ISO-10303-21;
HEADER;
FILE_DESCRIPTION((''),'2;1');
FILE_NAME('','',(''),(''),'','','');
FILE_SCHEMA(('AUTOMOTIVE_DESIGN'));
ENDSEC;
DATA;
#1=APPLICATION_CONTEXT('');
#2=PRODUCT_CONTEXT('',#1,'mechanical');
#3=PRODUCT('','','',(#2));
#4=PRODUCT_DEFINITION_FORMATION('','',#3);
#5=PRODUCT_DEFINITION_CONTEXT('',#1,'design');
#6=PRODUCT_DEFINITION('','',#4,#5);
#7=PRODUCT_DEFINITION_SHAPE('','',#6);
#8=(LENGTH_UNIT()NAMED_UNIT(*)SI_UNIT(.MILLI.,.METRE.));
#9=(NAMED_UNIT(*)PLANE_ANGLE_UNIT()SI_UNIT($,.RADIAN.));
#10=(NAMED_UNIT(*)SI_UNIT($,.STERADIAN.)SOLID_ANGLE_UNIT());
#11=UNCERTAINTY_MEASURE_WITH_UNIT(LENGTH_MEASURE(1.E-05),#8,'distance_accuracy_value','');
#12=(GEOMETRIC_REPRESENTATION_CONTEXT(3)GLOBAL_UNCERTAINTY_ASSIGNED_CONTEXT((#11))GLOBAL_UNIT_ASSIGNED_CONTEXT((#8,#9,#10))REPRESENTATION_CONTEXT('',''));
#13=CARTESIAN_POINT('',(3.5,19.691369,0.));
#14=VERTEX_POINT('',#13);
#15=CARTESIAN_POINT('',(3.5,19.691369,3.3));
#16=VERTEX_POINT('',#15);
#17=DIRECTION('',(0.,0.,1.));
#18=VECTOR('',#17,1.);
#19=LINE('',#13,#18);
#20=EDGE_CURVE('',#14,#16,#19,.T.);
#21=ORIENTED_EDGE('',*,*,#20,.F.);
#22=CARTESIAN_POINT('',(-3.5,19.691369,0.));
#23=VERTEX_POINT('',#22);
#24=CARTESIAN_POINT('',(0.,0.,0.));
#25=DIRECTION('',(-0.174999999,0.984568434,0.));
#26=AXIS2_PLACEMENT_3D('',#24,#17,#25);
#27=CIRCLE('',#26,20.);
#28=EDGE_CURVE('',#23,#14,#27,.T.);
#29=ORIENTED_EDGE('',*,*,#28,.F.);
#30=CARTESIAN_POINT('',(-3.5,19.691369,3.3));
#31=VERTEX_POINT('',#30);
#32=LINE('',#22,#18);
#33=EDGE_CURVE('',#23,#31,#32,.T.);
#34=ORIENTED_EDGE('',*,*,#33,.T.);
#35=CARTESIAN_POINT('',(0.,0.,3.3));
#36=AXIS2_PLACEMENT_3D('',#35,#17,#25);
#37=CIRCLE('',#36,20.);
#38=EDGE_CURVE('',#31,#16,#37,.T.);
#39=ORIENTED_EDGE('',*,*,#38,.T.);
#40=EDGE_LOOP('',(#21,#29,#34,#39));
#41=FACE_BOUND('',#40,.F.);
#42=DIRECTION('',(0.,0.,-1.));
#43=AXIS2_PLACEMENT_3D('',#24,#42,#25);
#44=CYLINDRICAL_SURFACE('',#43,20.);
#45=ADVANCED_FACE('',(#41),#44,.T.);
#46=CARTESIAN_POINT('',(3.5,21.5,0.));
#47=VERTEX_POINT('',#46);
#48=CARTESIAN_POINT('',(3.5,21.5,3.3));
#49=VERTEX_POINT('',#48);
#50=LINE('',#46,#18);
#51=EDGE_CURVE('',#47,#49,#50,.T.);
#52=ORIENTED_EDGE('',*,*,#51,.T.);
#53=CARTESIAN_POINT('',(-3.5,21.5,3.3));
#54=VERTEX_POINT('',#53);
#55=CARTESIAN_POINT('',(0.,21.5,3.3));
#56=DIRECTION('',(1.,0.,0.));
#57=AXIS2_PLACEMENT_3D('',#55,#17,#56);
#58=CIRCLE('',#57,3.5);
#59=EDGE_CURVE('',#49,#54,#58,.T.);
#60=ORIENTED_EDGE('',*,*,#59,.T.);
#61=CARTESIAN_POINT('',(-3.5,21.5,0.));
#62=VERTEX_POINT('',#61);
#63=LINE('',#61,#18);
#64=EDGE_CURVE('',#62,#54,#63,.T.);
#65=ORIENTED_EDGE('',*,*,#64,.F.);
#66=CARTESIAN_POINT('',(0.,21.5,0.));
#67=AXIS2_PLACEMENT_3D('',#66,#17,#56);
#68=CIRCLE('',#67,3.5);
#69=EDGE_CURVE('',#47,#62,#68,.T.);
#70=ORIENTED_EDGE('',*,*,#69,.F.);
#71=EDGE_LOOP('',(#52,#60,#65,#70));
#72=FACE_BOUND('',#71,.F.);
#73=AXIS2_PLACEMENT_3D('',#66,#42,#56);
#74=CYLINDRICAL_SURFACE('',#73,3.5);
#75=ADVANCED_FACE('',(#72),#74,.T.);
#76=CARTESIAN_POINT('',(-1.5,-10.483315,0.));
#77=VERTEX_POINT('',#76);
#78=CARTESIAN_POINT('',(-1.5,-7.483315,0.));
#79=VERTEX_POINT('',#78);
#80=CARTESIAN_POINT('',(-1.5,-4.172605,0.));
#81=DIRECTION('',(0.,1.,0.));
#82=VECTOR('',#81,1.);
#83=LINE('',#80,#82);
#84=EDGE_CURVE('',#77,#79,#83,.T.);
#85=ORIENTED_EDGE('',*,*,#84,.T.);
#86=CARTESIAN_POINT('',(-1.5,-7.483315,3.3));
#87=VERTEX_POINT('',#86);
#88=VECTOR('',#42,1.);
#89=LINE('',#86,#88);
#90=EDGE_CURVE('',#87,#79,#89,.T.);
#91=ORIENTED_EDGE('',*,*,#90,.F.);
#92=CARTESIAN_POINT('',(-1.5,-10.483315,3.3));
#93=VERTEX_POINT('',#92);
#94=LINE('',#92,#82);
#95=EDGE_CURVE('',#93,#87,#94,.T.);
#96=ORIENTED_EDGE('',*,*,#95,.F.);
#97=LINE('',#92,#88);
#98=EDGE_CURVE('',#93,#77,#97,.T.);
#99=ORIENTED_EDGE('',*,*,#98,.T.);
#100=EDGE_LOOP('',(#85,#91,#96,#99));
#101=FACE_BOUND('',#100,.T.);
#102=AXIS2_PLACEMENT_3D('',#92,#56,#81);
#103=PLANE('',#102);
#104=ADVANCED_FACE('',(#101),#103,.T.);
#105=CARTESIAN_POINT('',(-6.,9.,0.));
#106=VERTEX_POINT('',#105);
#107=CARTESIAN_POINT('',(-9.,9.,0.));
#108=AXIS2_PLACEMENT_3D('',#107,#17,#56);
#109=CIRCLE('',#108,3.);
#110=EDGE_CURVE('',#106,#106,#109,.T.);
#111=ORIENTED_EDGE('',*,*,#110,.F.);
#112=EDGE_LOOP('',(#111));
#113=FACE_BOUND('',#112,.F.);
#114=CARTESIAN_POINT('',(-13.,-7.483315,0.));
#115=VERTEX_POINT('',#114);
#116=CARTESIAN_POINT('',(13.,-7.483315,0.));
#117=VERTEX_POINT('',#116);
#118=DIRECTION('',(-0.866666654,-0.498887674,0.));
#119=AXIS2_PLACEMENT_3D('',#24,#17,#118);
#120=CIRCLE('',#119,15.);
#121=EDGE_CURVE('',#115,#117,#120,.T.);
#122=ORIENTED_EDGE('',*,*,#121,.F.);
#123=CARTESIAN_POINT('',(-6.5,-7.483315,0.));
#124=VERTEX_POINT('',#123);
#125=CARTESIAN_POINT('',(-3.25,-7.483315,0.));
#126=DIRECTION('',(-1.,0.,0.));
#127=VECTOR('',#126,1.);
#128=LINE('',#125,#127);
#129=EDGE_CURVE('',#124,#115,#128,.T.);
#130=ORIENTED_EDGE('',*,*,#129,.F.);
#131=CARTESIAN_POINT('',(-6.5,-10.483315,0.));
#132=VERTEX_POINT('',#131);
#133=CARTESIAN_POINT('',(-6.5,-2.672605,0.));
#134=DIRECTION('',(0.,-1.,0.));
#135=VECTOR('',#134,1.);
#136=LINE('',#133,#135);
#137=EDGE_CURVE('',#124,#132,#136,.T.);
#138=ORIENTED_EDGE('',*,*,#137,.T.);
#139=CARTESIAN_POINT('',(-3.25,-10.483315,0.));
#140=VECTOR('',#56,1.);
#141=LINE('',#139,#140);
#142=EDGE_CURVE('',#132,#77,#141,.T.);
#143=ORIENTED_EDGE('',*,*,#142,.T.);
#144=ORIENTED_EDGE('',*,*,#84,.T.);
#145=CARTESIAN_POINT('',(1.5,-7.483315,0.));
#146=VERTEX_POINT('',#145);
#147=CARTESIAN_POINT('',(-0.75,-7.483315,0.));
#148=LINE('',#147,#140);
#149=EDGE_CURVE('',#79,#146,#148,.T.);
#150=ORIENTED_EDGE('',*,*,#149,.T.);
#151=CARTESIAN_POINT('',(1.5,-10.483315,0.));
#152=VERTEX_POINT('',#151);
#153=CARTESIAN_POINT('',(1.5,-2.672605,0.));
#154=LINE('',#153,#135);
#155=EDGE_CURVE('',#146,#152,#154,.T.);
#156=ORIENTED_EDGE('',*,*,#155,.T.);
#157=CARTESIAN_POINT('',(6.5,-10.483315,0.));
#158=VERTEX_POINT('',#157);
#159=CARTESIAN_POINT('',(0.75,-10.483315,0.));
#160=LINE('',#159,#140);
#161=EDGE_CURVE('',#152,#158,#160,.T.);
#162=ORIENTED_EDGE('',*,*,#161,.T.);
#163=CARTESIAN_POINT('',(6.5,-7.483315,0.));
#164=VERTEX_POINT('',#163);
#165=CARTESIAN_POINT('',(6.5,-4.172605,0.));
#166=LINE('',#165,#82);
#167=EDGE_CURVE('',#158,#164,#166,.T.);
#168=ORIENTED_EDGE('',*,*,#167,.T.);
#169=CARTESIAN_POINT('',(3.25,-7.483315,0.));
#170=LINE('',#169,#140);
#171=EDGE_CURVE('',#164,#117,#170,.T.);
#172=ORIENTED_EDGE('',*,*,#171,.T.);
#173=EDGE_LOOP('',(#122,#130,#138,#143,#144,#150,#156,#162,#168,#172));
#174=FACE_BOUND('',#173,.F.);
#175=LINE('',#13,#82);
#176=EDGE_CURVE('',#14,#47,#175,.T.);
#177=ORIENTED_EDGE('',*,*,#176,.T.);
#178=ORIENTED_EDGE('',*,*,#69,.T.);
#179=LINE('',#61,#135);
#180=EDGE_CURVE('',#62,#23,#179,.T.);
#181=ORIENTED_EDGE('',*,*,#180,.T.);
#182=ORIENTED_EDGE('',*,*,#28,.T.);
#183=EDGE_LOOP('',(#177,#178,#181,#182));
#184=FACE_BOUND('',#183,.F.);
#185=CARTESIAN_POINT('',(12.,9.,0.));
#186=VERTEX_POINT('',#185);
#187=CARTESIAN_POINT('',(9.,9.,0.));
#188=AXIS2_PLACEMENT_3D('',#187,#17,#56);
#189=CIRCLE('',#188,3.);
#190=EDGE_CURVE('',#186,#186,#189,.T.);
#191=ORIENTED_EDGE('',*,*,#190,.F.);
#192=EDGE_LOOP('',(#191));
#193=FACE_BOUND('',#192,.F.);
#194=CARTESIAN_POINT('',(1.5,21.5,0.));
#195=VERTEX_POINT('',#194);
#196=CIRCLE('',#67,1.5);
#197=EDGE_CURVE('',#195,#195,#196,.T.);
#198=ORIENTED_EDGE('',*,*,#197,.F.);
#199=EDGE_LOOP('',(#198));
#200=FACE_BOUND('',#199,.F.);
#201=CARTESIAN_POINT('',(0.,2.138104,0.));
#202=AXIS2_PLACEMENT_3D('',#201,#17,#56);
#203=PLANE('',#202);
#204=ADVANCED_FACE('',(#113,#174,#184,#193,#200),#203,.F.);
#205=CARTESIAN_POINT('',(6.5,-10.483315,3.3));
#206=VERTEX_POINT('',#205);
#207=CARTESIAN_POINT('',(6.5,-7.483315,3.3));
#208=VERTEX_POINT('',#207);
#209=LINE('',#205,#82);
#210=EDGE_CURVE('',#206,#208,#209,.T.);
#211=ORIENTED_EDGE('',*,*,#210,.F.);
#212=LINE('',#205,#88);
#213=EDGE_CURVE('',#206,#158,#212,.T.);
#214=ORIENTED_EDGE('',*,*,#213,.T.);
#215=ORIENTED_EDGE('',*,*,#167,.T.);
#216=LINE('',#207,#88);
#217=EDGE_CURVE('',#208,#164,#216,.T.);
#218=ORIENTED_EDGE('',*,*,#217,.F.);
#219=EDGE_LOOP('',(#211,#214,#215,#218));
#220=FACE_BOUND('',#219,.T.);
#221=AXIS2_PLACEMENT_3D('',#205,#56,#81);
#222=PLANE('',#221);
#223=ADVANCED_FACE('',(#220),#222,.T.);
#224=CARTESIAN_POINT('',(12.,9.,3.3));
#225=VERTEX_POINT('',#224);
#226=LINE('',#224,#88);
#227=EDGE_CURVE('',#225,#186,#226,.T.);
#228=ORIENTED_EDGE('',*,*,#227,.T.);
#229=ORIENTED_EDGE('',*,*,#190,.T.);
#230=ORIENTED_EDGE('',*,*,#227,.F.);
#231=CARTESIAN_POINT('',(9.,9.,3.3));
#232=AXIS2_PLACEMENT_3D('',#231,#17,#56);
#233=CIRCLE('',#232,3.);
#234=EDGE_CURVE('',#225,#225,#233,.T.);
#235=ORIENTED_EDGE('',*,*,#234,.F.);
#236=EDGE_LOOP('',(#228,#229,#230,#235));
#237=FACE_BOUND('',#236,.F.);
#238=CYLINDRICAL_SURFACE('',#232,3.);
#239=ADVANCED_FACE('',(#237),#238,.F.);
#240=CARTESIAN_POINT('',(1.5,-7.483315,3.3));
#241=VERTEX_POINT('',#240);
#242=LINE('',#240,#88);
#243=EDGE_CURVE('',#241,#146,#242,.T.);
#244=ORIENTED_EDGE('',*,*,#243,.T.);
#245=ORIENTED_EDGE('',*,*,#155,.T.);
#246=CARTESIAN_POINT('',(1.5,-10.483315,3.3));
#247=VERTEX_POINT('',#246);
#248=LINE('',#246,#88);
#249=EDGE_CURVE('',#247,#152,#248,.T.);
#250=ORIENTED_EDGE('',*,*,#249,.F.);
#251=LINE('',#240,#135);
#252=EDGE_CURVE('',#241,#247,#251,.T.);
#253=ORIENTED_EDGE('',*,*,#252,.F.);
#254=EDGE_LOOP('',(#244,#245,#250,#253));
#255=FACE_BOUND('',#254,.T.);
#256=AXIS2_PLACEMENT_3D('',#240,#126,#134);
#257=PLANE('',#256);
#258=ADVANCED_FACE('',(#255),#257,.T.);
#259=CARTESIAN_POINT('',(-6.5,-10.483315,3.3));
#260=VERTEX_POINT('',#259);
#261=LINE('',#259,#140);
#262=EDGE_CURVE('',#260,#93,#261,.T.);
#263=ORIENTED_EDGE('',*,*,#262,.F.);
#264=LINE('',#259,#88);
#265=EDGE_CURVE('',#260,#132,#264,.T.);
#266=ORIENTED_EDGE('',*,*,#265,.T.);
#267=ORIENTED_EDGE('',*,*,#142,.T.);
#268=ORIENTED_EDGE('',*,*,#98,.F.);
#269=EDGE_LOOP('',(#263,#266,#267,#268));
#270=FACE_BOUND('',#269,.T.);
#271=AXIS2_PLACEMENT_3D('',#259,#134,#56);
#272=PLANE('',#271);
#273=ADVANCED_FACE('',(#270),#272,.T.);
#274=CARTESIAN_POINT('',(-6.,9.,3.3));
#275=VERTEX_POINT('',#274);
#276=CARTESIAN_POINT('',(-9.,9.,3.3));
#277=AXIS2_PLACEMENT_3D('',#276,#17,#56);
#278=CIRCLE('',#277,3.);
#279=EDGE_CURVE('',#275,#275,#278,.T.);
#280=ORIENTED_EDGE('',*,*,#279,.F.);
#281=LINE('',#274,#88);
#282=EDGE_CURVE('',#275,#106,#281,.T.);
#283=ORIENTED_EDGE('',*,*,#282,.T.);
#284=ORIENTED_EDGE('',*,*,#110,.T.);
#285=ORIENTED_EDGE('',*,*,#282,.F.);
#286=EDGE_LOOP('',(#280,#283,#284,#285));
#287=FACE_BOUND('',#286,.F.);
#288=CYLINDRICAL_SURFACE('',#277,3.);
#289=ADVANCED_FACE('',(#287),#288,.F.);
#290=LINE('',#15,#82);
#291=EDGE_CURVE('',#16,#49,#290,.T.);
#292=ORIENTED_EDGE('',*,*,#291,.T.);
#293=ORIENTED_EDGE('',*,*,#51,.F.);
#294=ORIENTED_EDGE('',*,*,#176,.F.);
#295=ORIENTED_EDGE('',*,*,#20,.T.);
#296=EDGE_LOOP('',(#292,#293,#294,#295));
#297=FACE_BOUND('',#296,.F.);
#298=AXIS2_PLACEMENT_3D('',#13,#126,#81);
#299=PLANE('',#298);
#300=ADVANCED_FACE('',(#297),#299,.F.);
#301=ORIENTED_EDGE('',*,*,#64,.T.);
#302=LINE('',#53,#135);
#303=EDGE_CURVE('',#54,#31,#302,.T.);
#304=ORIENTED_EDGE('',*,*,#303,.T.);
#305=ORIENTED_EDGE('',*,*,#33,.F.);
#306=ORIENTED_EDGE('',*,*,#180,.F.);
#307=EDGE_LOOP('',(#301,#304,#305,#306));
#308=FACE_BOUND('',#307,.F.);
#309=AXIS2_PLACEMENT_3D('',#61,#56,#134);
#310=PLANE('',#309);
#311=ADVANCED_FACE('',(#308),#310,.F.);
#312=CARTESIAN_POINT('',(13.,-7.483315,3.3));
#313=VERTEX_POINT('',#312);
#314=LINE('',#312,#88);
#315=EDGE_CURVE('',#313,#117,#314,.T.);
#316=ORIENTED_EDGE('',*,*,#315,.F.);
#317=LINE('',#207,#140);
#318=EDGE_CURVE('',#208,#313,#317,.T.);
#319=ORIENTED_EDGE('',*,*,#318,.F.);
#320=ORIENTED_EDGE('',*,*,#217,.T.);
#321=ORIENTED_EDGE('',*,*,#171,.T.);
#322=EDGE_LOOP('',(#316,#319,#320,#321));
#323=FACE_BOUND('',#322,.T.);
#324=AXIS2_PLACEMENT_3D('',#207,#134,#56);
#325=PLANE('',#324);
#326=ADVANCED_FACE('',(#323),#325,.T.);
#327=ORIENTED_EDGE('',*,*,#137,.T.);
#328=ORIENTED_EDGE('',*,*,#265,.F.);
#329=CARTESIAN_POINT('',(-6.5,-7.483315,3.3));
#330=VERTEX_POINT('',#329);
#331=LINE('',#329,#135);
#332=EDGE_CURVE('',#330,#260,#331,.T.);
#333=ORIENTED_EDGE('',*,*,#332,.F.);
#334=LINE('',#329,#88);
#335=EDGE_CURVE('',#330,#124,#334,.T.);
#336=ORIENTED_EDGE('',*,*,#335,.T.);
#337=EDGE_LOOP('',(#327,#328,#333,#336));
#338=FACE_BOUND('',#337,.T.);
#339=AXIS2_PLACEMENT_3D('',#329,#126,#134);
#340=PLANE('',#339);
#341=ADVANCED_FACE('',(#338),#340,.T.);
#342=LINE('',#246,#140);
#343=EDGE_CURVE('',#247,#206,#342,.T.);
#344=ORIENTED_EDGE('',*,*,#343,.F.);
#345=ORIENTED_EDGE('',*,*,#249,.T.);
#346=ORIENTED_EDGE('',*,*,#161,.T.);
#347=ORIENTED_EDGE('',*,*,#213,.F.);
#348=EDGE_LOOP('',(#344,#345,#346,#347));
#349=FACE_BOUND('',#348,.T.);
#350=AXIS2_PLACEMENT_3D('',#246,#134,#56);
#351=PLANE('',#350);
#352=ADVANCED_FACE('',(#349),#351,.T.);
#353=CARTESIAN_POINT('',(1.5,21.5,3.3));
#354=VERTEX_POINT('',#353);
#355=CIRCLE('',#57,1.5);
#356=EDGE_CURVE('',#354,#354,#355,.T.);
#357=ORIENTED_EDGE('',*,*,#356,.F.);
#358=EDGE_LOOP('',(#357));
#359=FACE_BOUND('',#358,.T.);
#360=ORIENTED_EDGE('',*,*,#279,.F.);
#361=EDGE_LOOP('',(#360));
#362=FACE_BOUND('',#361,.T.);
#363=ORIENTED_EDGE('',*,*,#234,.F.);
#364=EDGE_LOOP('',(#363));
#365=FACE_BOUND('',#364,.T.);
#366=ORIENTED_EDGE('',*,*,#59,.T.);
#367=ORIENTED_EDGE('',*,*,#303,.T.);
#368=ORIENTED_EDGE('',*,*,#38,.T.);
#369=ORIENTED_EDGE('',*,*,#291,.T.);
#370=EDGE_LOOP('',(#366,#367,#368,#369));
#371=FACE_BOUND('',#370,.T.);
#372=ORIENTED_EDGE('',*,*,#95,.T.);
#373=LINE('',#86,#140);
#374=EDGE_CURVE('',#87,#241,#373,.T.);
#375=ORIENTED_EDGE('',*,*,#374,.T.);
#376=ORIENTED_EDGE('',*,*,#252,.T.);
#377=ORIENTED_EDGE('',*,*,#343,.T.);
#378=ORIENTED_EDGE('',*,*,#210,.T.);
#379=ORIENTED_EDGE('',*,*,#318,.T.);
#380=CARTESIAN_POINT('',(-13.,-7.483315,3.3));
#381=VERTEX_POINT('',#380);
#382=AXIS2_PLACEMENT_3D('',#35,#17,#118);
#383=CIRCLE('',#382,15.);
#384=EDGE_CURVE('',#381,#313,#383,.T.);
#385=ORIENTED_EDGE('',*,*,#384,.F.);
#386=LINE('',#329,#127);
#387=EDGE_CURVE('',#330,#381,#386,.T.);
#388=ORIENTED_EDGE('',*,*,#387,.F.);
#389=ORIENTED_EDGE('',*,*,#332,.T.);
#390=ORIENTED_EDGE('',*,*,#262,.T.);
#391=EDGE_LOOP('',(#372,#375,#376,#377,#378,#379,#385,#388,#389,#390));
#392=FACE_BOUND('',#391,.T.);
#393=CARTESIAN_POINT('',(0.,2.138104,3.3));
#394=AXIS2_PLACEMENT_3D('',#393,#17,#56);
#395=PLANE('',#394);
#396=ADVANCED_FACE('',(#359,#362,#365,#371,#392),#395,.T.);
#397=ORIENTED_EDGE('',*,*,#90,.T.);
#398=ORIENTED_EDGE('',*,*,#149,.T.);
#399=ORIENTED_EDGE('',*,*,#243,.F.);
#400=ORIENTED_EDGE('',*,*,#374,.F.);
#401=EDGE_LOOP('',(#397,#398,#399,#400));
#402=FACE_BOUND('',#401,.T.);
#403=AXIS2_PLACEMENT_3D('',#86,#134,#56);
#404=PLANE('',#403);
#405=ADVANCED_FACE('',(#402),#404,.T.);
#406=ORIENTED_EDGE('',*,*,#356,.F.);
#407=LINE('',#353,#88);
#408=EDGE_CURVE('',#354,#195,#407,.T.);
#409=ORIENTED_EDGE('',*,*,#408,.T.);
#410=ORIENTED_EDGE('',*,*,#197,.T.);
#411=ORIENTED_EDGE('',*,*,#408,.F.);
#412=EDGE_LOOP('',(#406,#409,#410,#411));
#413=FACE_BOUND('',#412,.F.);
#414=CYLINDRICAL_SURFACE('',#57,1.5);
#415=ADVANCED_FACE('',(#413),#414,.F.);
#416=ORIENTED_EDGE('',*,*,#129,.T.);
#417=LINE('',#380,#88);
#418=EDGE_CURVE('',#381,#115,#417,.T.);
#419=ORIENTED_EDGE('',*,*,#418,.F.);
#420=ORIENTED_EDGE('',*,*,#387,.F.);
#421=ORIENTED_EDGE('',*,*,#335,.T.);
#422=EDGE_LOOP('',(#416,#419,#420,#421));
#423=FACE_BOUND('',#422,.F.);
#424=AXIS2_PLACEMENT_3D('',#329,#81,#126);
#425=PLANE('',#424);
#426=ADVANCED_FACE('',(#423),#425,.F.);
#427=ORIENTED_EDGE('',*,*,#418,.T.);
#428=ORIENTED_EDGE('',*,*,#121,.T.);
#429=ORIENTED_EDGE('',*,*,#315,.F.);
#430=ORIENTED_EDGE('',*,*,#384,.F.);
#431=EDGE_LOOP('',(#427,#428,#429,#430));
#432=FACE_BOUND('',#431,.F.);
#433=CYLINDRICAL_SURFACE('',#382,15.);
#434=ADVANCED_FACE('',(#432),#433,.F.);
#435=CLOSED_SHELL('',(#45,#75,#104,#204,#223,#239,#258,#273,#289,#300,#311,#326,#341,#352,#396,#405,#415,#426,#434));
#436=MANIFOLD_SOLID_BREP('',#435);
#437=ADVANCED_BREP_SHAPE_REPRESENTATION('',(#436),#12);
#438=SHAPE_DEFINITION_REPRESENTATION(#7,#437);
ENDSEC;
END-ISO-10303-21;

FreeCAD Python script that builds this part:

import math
import FreeCAD as App
import Part
import Sketcher

V = App.Vector
Q = App.Units.Quantity

doc = App.newDocument("Part")
body = doc.addObject("PartDesign::Body", "Body")

sketch1 = body.newObject("Sketcher::SketchObject", "Sketch")
sketch1.AttachmentSupport = (doc.getObject("XY_Plane"), [""])
sketch1.MapMode = "FlatFace"
sketch1.addGeometry([
    Part.ArcOfCircle(Part.Circle(V(0, 21.5, 0), V(0, 0, 1), 3.5), math.radians(0), math.radians(180)),
    Part.LineSegment(V(-3.5, 21.5, 0), V(-3.5, 19.691369, 0)),
    Part.ArcOfCircle(Part.Circle(V(0, 0, 0), V(0, 0, 1), 20), math.radians(100.078658), math.radians(439.921342)),
    Part.LineSegment(V(3.5, 19.691369, 0), V(3.5, 21.5, 0)),
], False)
sketch1.addConstraint([
    Sketcher.Constraint("Tangent", 0, 2, 1, 1),
    Sketcher.Constraint("Coincident", 1, 2, 2, 1),
    Sketcher.Constraint("Coincident", 2, 2, 3, 1),
    Sketcher.Constraint("Tangent", 3, 2, 0, 1),
    Sketcher.Constraint("Vertical", 1),
    Sketcher.Constraint("Vertical", 3),
    Sketcher.Constraint("Coincident", 2, 3, -1, 1),
    Sketcher.Constraint("PointOnObject", 0, 3, -2),
    Sketcher.Constraint("Radius", 2, Q("20 mm")),
    Sketcher.Constraint("Radius", 0, Q("3.5 mm")),
    Sketcher.Constraint("DistanceY", -1, 1, 0, 3, Q("21.5 mm")),
])
pad1 = body.newObject("PartDesign::Pad", "Pad")
pad1.Profile = sketch1
pad1.Length = 3.3

sketch2 = body.newObject("Sketcher::SketchObject", "Sketch001")
sketch2.AttachmentSupport = (doc.getObject("XY_Plane"), [""])
sketch2.MapMode = "FlatFace"
sketch2.AttachmentOffset = App.Placement(V(0, 0, 3.3), App.Rotation())
sketch2.addGeometry(Part.Circle(V(0, 21.5, 0), V(0, 0, 1), 1.5), False)
sketch2.addConstraint([
    Sketcher.Constraint("PointOnObject", 0, 3, -2),
    Sketcher.Constraint("Diameter", 0, Q("3 mm")),
    Sketcher.Constraint("DistanceY", -1, 1, 0, 3, Q("21.5 mm")),
])
pocket1 = body.newObject("PartDesign::Pocket", "Pocket")
pocket1.Profile = sketch2
pocket1.Type = "ThroughAll"

sketch3 = body.newObject("Sketcher::SketchObject", "Sketch002")
sketch3.AttachmentSupport = (doc.getObject("XY_Plane"), [""])
sketch3.MapMode = "FlatFace"
sketch3.AttachmentOffset = App.Placement(V(0, 0, 3.3), App.Rotation())
sketch3.addGeometry([
    Part.Circle(V(9, 9, 0), V(0, 0, 1), 3),
    Part.Circle(V(-9, 9, 0), V(0, 0, 1), 3),
    Part.ArcOfCircle(Part.Circle(V(0, 0, 0), V(0, 0, 1), 15), math.radians(-150.073564), math.radians(-29.926436)),
    Part.LineSegment(V(13, -7.483315, 0), V(6.5, -7.483315, 0)),
    Part.LineSegment(V(6.5, -7.483315, 0), V(6.5, -10.483315, 0)),
    Part.LineSegment(V(6.5, -10.483315, 0), V(1.5, -10.483315, 0)),
    Part.LineSegment(V(1.5, -10.483315, 0), V(1.5, -7.483315, 0)),
    Part.LineSegment(V(1.5, -7.483315, 0), V(-1.5, -7.483315, 0)),
    Part.LineSegment(V(-1.5, -7.483315, 0), V(-1.5, -10.483315, 0)),
    Part.LineSegment(V(-1.5, -10.483315, 0), V(-6.5, -10.483315, 0)),
    Part.LineSegment(V(-6.5, -10.483315, 0), V(-6.5, -7.483315, 0)),
    Part.LineSegment(V(-6.5, -7.483315, 0), V(-13, -7.483315, 0)),
], False)
sketch3.addConstraint([
    Sketcher.Constraint("Coincident", 2, 2, 3, 1),
    Sketcher.Constraint("Coincident", 3, 2, 4, 1),
    Sketcher.Constraint("Coincident", 4, 2, 5, 1),
    Sketcher.Constraint("Coincident", 5, 2, 6, 1),
    Sketcher.Constraint("Coincident", 6, 2, 7, 1),
    Sketcher.Constraint("Coincident", 7, 2, 8, 1),
    Sketcher.Constraint("Coincident", 8, 2, 9, 1),
    Sketcher.Constraint("Coincident", 9, 2, 10, 1),
    Sketcher.Constraint("Coincident", 10, 2, 11, 1),
    Sketcher.Constraint("Coincident", 11, 2, 2, 1),
    Sketcher.Constraint("Horizontal", 3),
    Sketcher.Constraint("Vertical", 4),
    Sketcher.Constraint("Horizontal", 5),
    Sketcher.Constraint("Vertical", 6),
    Sketcher.Constraint("Horizontal", 7),
    Sketcher.Constraint("Vertical", 8),
    Sketcher.Constraint("Horizontal", 9),
    Sketcher.Constraint("Vertical", 10),
    Sketcher.Constraint("Horizontal", 11),
    Sketcher.Constraint("Coincident", 2, 3, -1, 1),
    Sketcher.Constraint("Equal", 0, 1),
    Sketcher.Constraint("Symmetric", 0, 3, 1, 3, -2),
    Sketcher.Constraint("Symmetric", 5, 2, 8, 2, -2),
    Sketcher.Constraint("Symmetric", 3, 2, 10, 2, -2),
    Sketcher.Constraint("Horizontal", 3, 2, 6, 2),
    Sketcher.Constraint("Equal", 7, 4),
    Sketcher.Constraint("Diameter", 0, Q("6 mm")),
    Sketcher.Constraint("Radius", 2, Q("15 mm")),
    Sketcher.Constraint("DistanceX", 5, 2, 5, 1, Q("5 mm")),
    Sketcher.Constraint("DistanceX", 7, 2, 7, 1, Q("3 mm")),
    Sketcher.Constraint("DistanceX", 3, 2, 3, 1, Q("6.5 mm")),
    Sketcher.Constraint("DistanceX", -1, 1, 0, 3, Q("9 mm")),
    Sketcher.Constraint("DistanceY", -1, 1, 0, 3, Q("9 mm")),
])
pocket2 = body.newObject("PartDesign::Pocket", "Pocket001")
pocket2.Profile = sketch3
pocket2.Length = 5

doc.recompute()
